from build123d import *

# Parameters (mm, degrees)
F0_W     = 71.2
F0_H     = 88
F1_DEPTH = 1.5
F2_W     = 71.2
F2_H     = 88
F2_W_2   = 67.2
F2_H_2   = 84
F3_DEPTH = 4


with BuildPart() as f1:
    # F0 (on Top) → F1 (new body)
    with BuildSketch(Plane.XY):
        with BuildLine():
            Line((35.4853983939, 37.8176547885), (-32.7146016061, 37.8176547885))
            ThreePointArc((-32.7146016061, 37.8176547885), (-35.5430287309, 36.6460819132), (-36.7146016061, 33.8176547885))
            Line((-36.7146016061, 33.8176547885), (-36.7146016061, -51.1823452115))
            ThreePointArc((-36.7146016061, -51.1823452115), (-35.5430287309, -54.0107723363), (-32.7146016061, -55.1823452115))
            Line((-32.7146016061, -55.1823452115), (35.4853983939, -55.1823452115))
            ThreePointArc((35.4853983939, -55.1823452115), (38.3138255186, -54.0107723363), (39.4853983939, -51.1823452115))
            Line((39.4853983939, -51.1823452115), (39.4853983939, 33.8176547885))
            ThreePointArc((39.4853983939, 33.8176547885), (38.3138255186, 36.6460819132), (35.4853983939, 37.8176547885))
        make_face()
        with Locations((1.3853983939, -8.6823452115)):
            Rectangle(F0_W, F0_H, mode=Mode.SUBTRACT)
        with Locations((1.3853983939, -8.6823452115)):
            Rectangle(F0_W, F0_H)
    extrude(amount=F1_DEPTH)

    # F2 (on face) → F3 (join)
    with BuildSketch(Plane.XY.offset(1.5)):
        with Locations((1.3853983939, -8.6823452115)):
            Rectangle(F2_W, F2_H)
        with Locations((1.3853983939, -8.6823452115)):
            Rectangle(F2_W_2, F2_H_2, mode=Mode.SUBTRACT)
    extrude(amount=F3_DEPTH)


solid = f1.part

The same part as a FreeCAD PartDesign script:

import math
import FreeCAD as App
import Part
import Sketcher
from FreeCAD import Vector

doc = App.newDocument("Part")
body = doc.addObject("PartDesign::Body", "Body")

# Sketch on XY plane
sketch1 = body.newObject("Sketcher::SketchObject", "Sketch")
sketch1.AttachmentSupport = (doc.getObject("XY_Plane"), [""])
sketch1.MapMode = "FlatFace"
sketch1.addGeometry(Part.LineSegment(Vector(35.5, 37.8, 0), Vector(-32.7, 37.8, 0)), False)
sketch1.addGeometry(Part.ArcOfCircle(Part.Circle(Vector(-32.7, 33.8, 0), Vector(0, 0, 1), 4), math.radians(90), math.radians(180)), False)
sketch1.addGeometry(Part.LineSegment(Vector(-36.7, 33.8, 0), Vector(-36.7, -51.2, 0)), False)
sketch1.addGeometry(Part.ArcOfCircle(Part.Circle(Vector(-32.7, -51.2, 0), Vector(0, 0, 1), 4), math.radians(180), math.radians(270)), False)
sketch1.addGeometry(Part.LineSegment(Vector(-32.7, -55.2, 0), Vector(35.5, -55.2, 0)), False)
sketch1.addGeometry(Part.ArcOfCircle(Part.Circle(Vector(35.5, -51.2, 0), Vector(0, 0, 1), 4), math.radians(-90), math.radians(0)), False)
sketch1.addGeometry(Part.LineSegment(Vector(39.5, -51.2, 0), Vector(39.5, 33.8, 0)), False)
sketch1.addGeometry(Part.ArcOfCircle(Part.Circle(Vector(35.5, 33.8, 0), Vector(0, 0, 1), 4), math.radians(0), math.radians(90)), False)
sketch1.addConstraint(Sketcher.Constraint("Tangent", 0, 2, 1, 1))
sketch1.addConstraint(Sketcher.Constraint("Tangent", 1, 2, 2, 1))
sketch1.addConstraint(Sketcher.Constraint("Tangent", 2, 2, 3, 1))
sketch1.addConstraint(Sketcher.Constraint("Tangent", 3, 2, 4, 1))
sketch1.addConstraint(Sketcher.Constraint("Tangent", 4, 2, 5, 1))
sketch1.addConstraint(Sketcher.Constraint("Tangent", 5, 2, 6, 1))
sketch1.addConstraint(Sketcher.Constraint("Tangent", 6, 2, 7, 1))
sketch1.addConstraint(Sketcher.Constraint("Tangent", 7, 2, 0, 1))
sketch1.addConstraint(Sketcher.Constraint("Horizontal", 0))
sketch1.addConstraint(Sketcher.Constraint("Vertical", 2))
sketch1.addConstraint(Sketcher.Constraint("Horizontal", 4))
sketch1.addConstraint(Sketcher.Constraint("Vertical", 6))
sketch1.addConstraint(Sketcher.Constraint("Equal", 1, 3))
sketch1.addConstraint(Sketcher.Constraint("Equal", 3, 5))
sketch1.addConstraint(Sketcher.Constraint("Equal", 5, 7))
sketch1.addConstraint(Sketcher.Constraint("Radius", 1, 4.0))
sketch1.addConstraint(Sketcher.Constraint("DistanceY", 2, 2, 2, 1, 85.0))
sketch1.addConstraint(Sketcher.Constraint("DistanceX", 0, 2, 0, 1, 68.2))
sketch1.addConstraint(Sketcher.Constraint("DistanceX", 1, 3, -1, 1, 32.714602))
sketch1.addConstraint(Sketcher.Constraint("DistanceY", -1, 1, 1, 3, 33.817655))
pad1 = body.newObject("PartDesign::Pad", "Pad")
pad1.Profile = sketch1
pad1.Length = 1.5

# Sketch on XY plane
sketch2 = body.newObject("Sketcher::SketchObject", "Sketch001")
sketch2.AttachmentSupport = (doc.getObject("XY_Plane"), [""])
sketch2.MapMode = "FlatFace"
sketch2.AttachmentOffset = App.Placement(Vector(0, 0, 1.5), App.Rotation())
sketch2.addGeometry(Part.LineSegment(Vector(-34, 35, 0), Vector(-34, -53, 0)), False)
sketch2.addGeometry(Part.LineSegment(Vector(-34, -53, 0), Vector(37, -53, 0)), False)
sketch2.addGeometry(Part.LineSegment(Vector(37, -53, 0), Vector(37, 35, 0)), False)
sketch2.addGeometry(Part.LineSegment(Vector(37, 35, 0), Vector(-34, 35, 0)), False)
sketch2.addGeometry(Part.LineSegment(Vector(35, -51, 0), Vector(-32, -51, 0)), False)
sketch2.addGeometry(Part.LineSegment(Vector(-32, -51, 0), Vector(-32, 33, 0)), False)
sketch2.addGeometry(Part.LineSegment(Vector(-32, 33, 0), Vector(35, 33, 0)), False)
sketch2.addGeometry(Part.LineSegment(Vector(35, 33, 0), Vector(35, -51, 0)), False)
sketch2.addConstraint(Sketcher.Constraint("Coincident", 0, 2, 1, 1))
sketch2.addConstraint(Sketcher.Constraint("Coincident", 1, 2, 2, 1))
sketch2.addConstraint(Sketcher.Constraint("Coincident", 2, 2, 3, 1))
sketch2.addConstraint(Sketcher.Constraint("Coincident", 3, 2, 0, 1))
sketch2.addConstraint(Sketcher.Constraint("Coincident", 4, 2, 5, 1))
sketch2.addConstraint(Sketcher.Constraint("Coincident", 5, 2, 6, 1))
sketch2.addConstraint(Sketcher.Constraint("Coincident", 6, 2, 7, 1))
sketch2.addConstraint(Sketcher.Constraint("Coincident", 7, 2, 4, 1))
sketch2.addConstraint(Sketcher.Constraint("Vertical", 0))
sketch2.addConstraint(Sketcher.Constraint("Horizontal", 1))
sketch2.addConstraint(Sketcher.Constraint("Vertical", 2))
sketch2.addConstraint(Sketcher.Constraint("Horizontal", 3))
sketch2.addConstraint(Sketcher.Constraint("Horizontal", 4))
sketch2.addConstraint(Sketcher.Constraint("Vertical", 5))
sketch2.addConstraint(Sketcher.Constraint("Horizontal", 6))
sketch2.addConstraint(Sketcher.Constraint("Vertical", 7))
sketch2.addConstraint(Sketcher.Constraint("DistanceY", 0, 2, 0, 1, 88.0))
sketch2.addConstraint(Sketcher.Constraint("DistanceY", 5, 1, 5, 2, 84.0))
sketch2.addConstraint(Sketcher.Constraint("DistanceX", 1, 1, 1, 2, 71.2))
sketch2.addConstraint(Sketcher.Constraint("DistanceX", 4, 2, 4, 1, 67.2))
sketch2.addConstraint(Sketcher.Constraint("DistanceX", 0, 2, 4, 2, 2.0))
sketch2.addConstraint(Sketcher.Constraint("DistanceY", 0, 2, 4, 2, 2.0))
sketch2.addConstraint(Sketcher.Constraint("DistanceX", 0, 2, -1, 1, 34.214602))
sketch2.addConstraint(Sketcher.Constraint("DistanceY", 0, 2, -1, 1, 52.682345))
pad2 = body.newObject("PartDesign::Pad", "Pad001")
pad2.Profile = sketch2
pad2.Length = 4

doc.recompute()
